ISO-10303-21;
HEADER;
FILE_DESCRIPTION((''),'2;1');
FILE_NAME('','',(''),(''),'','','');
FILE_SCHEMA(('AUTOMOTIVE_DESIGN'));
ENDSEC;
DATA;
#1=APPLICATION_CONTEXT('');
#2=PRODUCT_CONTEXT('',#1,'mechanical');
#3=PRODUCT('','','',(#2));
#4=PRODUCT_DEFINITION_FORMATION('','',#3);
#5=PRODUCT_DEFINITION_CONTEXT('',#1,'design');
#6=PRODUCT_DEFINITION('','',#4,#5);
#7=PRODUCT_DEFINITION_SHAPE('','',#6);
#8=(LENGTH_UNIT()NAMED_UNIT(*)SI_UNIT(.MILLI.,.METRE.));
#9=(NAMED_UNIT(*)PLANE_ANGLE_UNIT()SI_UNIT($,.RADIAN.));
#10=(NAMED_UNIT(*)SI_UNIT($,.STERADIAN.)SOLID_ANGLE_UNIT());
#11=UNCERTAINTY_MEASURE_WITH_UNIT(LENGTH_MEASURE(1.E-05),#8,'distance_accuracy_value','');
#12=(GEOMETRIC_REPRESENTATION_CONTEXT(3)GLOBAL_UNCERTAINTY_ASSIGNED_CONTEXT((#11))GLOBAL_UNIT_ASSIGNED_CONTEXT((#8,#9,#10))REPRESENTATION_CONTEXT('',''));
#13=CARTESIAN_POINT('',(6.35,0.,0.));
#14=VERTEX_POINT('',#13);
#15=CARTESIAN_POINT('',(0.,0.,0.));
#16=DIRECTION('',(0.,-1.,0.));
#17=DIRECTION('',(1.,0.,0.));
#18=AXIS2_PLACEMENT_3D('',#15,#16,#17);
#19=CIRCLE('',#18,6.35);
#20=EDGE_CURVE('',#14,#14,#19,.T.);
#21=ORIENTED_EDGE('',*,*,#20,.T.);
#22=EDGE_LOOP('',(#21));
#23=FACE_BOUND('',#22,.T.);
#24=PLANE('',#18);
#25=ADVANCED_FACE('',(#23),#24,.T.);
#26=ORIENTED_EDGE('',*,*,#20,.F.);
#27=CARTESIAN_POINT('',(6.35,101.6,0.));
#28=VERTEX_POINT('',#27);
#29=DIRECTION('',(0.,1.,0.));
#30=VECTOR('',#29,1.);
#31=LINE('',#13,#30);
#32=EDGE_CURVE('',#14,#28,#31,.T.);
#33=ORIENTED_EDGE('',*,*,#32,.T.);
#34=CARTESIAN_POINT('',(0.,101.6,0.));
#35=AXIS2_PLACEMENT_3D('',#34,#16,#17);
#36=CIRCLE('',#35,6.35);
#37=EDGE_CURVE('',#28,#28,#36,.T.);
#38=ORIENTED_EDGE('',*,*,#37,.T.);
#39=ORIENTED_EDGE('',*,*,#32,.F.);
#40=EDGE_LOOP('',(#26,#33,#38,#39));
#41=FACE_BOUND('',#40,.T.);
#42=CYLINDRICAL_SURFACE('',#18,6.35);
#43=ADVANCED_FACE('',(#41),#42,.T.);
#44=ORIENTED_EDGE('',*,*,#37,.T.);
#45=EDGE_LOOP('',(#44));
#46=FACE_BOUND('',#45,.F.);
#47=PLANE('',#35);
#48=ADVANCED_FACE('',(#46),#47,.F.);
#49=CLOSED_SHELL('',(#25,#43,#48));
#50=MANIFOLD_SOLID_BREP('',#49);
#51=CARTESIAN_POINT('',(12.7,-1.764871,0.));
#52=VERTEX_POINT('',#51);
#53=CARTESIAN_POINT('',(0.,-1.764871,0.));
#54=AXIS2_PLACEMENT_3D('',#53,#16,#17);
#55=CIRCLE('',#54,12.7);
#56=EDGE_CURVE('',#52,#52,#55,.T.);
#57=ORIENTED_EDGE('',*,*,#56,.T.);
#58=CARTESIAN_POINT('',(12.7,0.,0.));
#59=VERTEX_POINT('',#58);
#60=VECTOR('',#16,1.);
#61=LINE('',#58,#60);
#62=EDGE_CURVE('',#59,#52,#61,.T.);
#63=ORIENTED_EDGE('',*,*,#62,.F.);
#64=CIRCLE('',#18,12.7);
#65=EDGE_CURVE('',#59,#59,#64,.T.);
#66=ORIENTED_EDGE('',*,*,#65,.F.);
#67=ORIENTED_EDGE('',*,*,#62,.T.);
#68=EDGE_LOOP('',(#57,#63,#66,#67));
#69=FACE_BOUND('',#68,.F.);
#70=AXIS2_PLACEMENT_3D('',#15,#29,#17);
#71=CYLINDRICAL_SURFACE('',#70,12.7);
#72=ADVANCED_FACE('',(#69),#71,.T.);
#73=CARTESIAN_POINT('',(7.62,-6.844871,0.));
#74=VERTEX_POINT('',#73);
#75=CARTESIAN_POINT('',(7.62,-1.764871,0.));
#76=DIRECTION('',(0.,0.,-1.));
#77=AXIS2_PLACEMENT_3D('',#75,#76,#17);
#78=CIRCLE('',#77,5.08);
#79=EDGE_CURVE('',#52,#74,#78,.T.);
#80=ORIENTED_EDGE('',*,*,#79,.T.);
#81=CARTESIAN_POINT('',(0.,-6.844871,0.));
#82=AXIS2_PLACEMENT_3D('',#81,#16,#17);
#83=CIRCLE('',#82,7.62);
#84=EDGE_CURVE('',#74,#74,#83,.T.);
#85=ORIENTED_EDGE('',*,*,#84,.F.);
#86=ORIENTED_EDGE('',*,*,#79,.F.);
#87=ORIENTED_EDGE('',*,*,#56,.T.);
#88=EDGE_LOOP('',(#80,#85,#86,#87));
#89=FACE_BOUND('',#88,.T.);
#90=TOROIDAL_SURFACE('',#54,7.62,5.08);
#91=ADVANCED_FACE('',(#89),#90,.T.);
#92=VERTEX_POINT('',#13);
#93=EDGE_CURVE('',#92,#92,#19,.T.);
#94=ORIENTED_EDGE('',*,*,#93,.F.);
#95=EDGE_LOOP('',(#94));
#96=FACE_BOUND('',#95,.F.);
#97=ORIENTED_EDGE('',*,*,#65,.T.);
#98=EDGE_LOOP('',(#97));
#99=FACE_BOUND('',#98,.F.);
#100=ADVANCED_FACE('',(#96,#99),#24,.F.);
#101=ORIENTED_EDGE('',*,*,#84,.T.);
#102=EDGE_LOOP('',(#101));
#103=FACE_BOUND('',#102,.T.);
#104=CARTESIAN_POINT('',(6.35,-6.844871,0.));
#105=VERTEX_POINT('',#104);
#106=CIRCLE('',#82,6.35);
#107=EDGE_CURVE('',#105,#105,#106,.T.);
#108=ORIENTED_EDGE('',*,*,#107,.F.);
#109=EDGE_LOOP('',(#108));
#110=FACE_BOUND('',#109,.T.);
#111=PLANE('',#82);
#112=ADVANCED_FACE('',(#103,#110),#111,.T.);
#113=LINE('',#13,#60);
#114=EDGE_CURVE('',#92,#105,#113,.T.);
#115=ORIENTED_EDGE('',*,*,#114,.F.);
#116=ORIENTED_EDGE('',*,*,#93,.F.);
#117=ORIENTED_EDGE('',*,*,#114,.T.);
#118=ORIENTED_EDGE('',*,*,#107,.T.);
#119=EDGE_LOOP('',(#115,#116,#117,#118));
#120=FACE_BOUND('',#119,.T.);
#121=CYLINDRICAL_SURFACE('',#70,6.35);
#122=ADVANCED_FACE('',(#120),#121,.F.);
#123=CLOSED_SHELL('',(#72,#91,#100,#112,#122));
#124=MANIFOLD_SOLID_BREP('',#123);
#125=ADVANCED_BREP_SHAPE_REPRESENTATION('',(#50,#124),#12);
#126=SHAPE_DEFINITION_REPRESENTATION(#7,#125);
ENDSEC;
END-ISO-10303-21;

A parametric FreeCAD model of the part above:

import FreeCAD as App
import Part
import Sketcher
Q = App.Units.Quantity


def edges_at(feature, points):
    """Names of the edges that pass closest to the given points."""
    edges = feature.Shape.Edges
    near = lambda p: min(range(len(edges)), key=lambda i: edges[i].distToShape(Part.Vertex(*p))[0])
    return sorted({f"Edge{near(p) + 1}" for p in points})

doc = App.newDocument("Part")
body = doc.addObject("PartDesign::Body", "Body")

sketch1 = body.newObject("Sketcher::SketchObject", "Sketch")
sketch1.AttachmentSupport = (doc.getObject("XZ_Plane"), [""])
sketch1.MapMode = "FlatFace"
sketch1.addGeometry([
    Part.Circle(App.Vector(0, 0, 0), App.Vector(0, 0, 1), 13),
    Part.Circle(App.Vector(0, 0, 0), App.Vector(0, 0, 1), 6),
], False)
sketch1.addConstraint([
    Sketcher.Constraint("Coincident", 0, 3, -1, 1),
    Sketcher.Constraint("Coincident", 1, 3, -1, 1),
    Sketcher.Constraint("Diameter", 0, Q("1 in")),
    Sketcher.Constraint("Diameter", 1, Q("0.5 in")),
])
pad1 = body.newObject("PartDesign::Pad", "Pad")
pad1.Profile = sketch1
pad1.Length = 6.844871
doc.recompute()

fillet = body.newObject("PartDesign::Fillet", "Fillet")
fillet.Base = (pad1, edges_at(pad1, [(-12.7, -6.845, 0)]))
fillet.Radius = Q("0.2 in")
body2 = doc.addObject("PartDesign::Body", "Body001")

sketch2 = body2.newObject("Sketcher::SketchObject", "Sketch001")
sketch2.AttachmentSupport = (doc.getObject("XZ_Plane001"), [""])
sketch2.MapMode = "FlatFace"
sketch2.addGeometry(Part.Circle(App.Vector(0, 0, 0), App.Vector(0, 0, 1), 6), False)
sketch2.addConstraint([
    Sketcher.Constraint("Coincident", 0, 3, -1, 1),
    Sketcher.Constraint("Diameter", 0, Q("0.5 in")),
])
pad2 = body2.newObject("PartDesign::Pad", "Pad001")
pad2.Profile = sketch2
pad2.Length = Q("4 in")
pad2.Reversed = True

doc.recompute()
